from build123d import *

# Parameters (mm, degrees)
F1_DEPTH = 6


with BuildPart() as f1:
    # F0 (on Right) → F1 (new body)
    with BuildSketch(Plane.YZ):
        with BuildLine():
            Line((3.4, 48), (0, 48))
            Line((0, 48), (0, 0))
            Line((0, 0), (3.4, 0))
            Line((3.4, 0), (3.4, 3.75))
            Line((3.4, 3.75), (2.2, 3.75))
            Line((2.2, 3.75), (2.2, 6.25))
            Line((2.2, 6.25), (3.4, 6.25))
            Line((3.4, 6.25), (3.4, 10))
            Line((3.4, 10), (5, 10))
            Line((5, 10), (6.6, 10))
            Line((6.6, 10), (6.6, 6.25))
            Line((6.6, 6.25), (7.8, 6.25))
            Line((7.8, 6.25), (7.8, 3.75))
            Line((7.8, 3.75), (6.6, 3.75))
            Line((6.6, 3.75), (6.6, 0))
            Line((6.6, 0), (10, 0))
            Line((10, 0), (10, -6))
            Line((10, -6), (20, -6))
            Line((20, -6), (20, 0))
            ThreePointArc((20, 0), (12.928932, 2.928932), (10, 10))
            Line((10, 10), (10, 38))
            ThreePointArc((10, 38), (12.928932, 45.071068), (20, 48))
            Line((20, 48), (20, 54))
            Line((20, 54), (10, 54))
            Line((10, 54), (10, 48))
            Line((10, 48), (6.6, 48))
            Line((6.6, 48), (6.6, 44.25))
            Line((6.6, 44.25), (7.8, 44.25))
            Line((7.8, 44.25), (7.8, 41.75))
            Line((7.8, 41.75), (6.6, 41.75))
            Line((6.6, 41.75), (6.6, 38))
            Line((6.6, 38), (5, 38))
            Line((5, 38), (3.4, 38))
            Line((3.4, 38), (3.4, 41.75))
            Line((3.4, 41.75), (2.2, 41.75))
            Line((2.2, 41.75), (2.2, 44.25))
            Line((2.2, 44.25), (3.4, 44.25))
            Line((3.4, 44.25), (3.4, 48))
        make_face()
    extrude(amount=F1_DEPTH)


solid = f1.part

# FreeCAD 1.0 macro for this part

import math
import FreeCAD as App
import Part
import Sketcher

doc = App.newDocument("Part")
params = doc.addObject("Spreadsheet::Sheet", "Params")
for row, (alias, value) in enumerate([
    ("sketch1_radius", "9.999999 mm"),
    ("sketch1_height", "48 mm"),
    ("sketch1_height2", "6 mm"),
    ("sketch1_width", "3.4 mm"),
    ("sketch1_width2", "1.2 mm"),
    ("pad1_length", "6 mm"),
], start=1):
    params.set(f"A{row}", alias)
    params.set(f"B{row}", "=" + value)
    params.setAlias(f"B{row}", alias)

body = doc.addObject("PartDesign::Body", "Body")

# Sketch on YZ plane
sketch1 = body.newObject("Sketcher::SketchObject", "Sketch")
sketch1.AttachmentSupport = (doc.getObject("YZ_Plane"), [""])
sketch1.MapMode = "FlatFace"
sketch1.addGeometry([
    Part.LineSegment(App.Vector(3.4, 48, 0), App.Vector(0, 48, 0)),  # 0
    Part.LineSegment(App.Vector(0, 48, 0), App.Vector(0, 0, 0)),  # 1
    Part.LineSegment(App.Vector(0, 0, 0), App.Vector(3.4, 0, 0)),  # 2
    Part.LineSegment(App.Vector(3.4, 0, 0), App.Vector(3.4, 3.8, 0)),  # 3
    Part.LineSegment(App.Vector(3.4, 3.8, 0), App.Vector(2.2, 3.8, 0)),  # 4
    Part.LineSegment(App.Vector(2.2, 3.8, 0), App.Vector(2.2, 6.2, 0)),  # 5
    Part.LineSegment(App.Vector(2.2, 6.2, 0), App.Vector(3.4, 6.2, 0)),  # 6
    Part.LineSegment(App.Vector(3.4, 6.2, 0), App.Vector(3.4, 10, 0)),  # 7
    Part.LineSegment(App.Vector(3.4, 10, 0), App.Vector(6.6, 10, 0)),  # 8
    Part.LineSegment(App.Vector(6.6, 10, 0), App.Vector(6.6, 6.2, 0)),  # 9
    Part.LineSegment(App.Vector(6.6, 6.2, 0), App.Vector(7.8, 6.2, 0)),  # 10
    Part.LineSegment(App.Vector(7.8, 6.2, 0), App.Vector(7.8, 3.8, 0)),  # 11
    Part.LineSegment(App.Vector(7.8, 3.8, 0), App.Vector(6.6, 3.8, 0)),  # 12
    Part.LineSegment(App.Vector(6.6, 3.8, 0), App.Vector(6.6, 0, 0)),  # 13
    Part.LineSegment(App.Vector(6.6, 0, 0), App.Vector(10, 0, 0)),  # 14
    Part.LineSegment(App.Vector(10, 0, 0), App.Vector(10, -6, 0)),  # 15
    Part.LineSegment(App.Vector(10, -6, 0), App.Vector(20, -6, 0)),  # 16
    Part.LineSegment(App.Vector(20, -6, 0), App.Vector(20, 0, 0)),  # 17
    Part.ArcOfCircle(Part.Circle(App.Vector(20, 10, 0), App.Vector(0, 0, 1), 10), math.radians(180), math.radians(270)),  # 18
    Part.LineSegment(App.Vector(10, 10, 0), App.Vector(10, 38, 0)),  # 19
    Part.ArcOfCircle(Part.Circle(App.Vector(20, 38, 0), App.Vector(0, 0, 1), 10), math.radians(90), math.radians(180)),  # 20
    Part.LineSegment(App.Vector(20, 48, 0), App.Vector(20, 54, 0)),  # 21
    Part.LineSegment(App.Vector(20, 54, 0), App.Vector(10, 54, 0)),  # 22
    Part.LineSegment(App.Vector(10, 54, 0), App.Vector(10, 48, 0)),  # 23
    Part.LineSegment(App.Vector(10, 48, 0), App.Vector(6.6, 48, 0)),  # 24
    Part.LineSegment(App.Vector(6.6, 48, 0), App.Vector(6.6, 44.2, 0)),  # 25
    Part.LineSegment(App.Vector(6.6, 44.2, 0), App.Vector(7.8, 44.2, 0)),  # 26
    Part.LineSegment(App.Vector(7.8, 44.2, 0), App.Vector(7.8, 41.8, 0)),  # 27
    Part.LineSegment(App.Vector(7.8, 41.8, 0), App.Vector(6.6, 41.8, 0)),  # 28
    Part.LineSegment(App.Vector(6.6, 41.8, 0), App.Vector(6.6, 38, 0)),  # 29
    Part.LineSegment(App.Vector(6.6, 38, 0), App.Vector(3.4, 38, 0)),  # 30
    Part.LineSegment(App.Vector(3.4, 38, 0), App.Vector(3.4, 41.8, 0)),  # 31
    Part.LineSegment(App.Vector(3.4, 41.8, 0), App.Vector(2.2, 41.8, 0)),  # 32
    Part.LineSegment(App.Vector(2.2, 41.8, 0), App.Vector(2.2, 44.2, 0)),  # 33
    Part.LineSegment(App.Vector(2.2, 44.2, 0), App.Vector(3.4, 44.2, 0)),  # 34
    Part.LineSegment(App.Vector(3.4, 44.2, 0), App.Vector(3.4, 48, 0)),  # 35
], False)
sketch1.addConstraint([
    Sketcher.Constraint("Coincident", 0, 2, 1, 1),
    Sketcher.Constraint("Coincident", 1, 2, 2, 1),
    Sketcher.Constraint("Coincident", 2, 2, 3, 1),
    Sketcher.Constraint("Coincident", 3, 2, 4, 1),
    Sketcher.Constraint("Coincident", 4, 2, 5, 1),
    Sketcher.Constraint("Coincident", 5, 2, 6, 1),
    Sketcher.Constraint("Coincident", 6, 2, 7, 1),
    Sketcher.Constraint("Coincident", 7, 2, 8, 1),
    Sketcher.Constraint("Coincident", 8, 2, 9, 1),
    Sketcher.Constraint("Coincident", 9, 2, 10, 1),
    Sketcher.Constraint("Coincident", 10, 2, 11, 1),
    Sketcher.Constraint("Coincident", 11, 2, 12, 1),
    Sketcher.Constraint("Coincident", 12, 2, 13, 1),
    Sketcher.Constraint("Coincident", 13, 2, 14, 1),
    Sketcher.Constraint("Coincident", 14, 2, 15, 1),
    Sketcher.Constraint("Coincident", 15, 2, 16, 1),
    Sketcher.Constraint("Coincident", 16, 2, 17, 1),
    Sketcher.Constraint("Coincident", 17, 2, 18, 2),
    Sketcher.Constraint("Tangent", 18, 1, 19, 1),
    Sketcher.Constraint("Tangent", 19, 2, 20, 2),
    Sketcher.Constraint("Coincident", 20, 1, 21, 1),
    Sketcher.Constraint("Coincident", 21, 2, 22, 1),
    Sketcher.Constraint("Coincident", 22, 2, 23, 1),
    Sketcher.Constraint("Coincident", 23, 2, 24, 1),
    Sketcher.Constraint("Coincident", 24, 2, 25, 1),
    Sketcher.Constraint("Coincident", 25, 2, 26, 1),
    Sketcher.Constraint("Coincident", 26, 2, 27, 1),
    Sketcher.Constraint("Coincident", 27, 2, 28, 1),
    Sketcher.Constraint("Coincident", 28, 2, 29, 1),
    Sketcher.Constraint("Coincident", 29, 2, 30, 1),
    Sketcher.Constraint("Coincident", 30, 2, 31, 1),
    Sketcher.Constraint("Coincident", 31, 2, 32, 1),
    Sketcher.Constraint("Coincident", 32, 2, 33, 1),
    Sketcher.Constraint("Coincident", 33, 2, 34, 1),
    Sketcher.Constraint("Coincident", 34, 2, 35, 1),
    Sketcher.Constraint("Coincident", 35, 2, 0, 1),
    Sketcher.Constraint("Horizontal", 0),
    Sketcher.Constraint("Vertical", 1),
    Sketcher.Constraint("Horizontal", 2),
    Sketcher.Constraint("Vertical", 3),
    Sketcher.Constraint("Horizontal", 4),
    Sketcher.Constraint("Vertical", 5),
    Sketcher.Constraint("Horizontal", 6),
    Sketcher.Constraint("Vertical", 7),
    Sketcher.Constraint("Horizontal", 8),
    Sketcher.Constraint("Vertical", 9),
    Sketcher.Constraint("Horizontal", 10),
    Sketcher.Constraint("Vertical", 11),
    Sketcher.Constraint("Horizontal", 12),
    Sketcher.Constraint("Vertical", 13),
    Sketcher.Constraint("Horizontal", 14),
    Sketcher.Constraint("Vertical", 15),
    Sketcher.Constraint("Horizontal", 16),
    Sketcher.Constraint("Vertical", 17),
    Sketcher.Constraint("Vertical", 19),
    Sketcher.Constraint("Vertical", 21),
    Sketcher.Constraint("Horizontal", 22),
    Sketcher.Constraint("Vertical", 23),
    Sketcher.Constraint("Horizontal", 24),
    Sketcher.Constraint("Vertical", 25),
    Sketcher.Constraint("Horizontal", 26),
    Sketcher.Constraint("Vertical", 27),
    Sketcher.Constraint("Horizontal", 28),
    Sketcher.Constraint("Vertical", 29),
    Sketcher.Constraint("Horizontal", 30),
    Sketcher.Constraint("Vertical", 31),
    Sketcher.Constraint("Horizontal", 32),
    Sketcher.Constraint("Vertical", 33),
    Sketcher.Constraint("Horizontal", 34),
    Sketcher.Constraint("Vertical", 35),
    Sketcher.Constraint("Coincident", 1, 2, -1, 1),
    Sketcher.Constraint("Equal", 18, 20),
    Sketcher.Constraint("PointOnObject", 13, 2, -1),
    Sketcher.Constraint("PointOnObject", 17, 2, -1),
    Sketcher.Constraint("Horizontal", 18, 3, 7, 2),
    Sketcher.Constraint("Horizontal", 6, 2, 9, 2),
    Sketcher.Constraint("Horizontal", 4, 2, 11, 2),
    Sketcher.Constraint("Horizontal", 0, 2, 20, 1),
    Sketcher.Constraint("Horizontal", 20, 1, 23, 2),
    Sketcher.Constraint("Horizontal", 19, 2, 29, 2),
    Sketcher.Constraint("Horizontal", 28, 2, 31, 2),
    Sketcher.Constraint("Horizontal", 26, 2, 33, 2),
    Sketcher.Constraint("Vertical", 3, 2, 6, 2),
    Sketcher.Constraint("Vertical", 9, 2, 12, 2),
    Sketcher.Constraint("Vertical", 20, 3, 16, 2),
    Sketcher.Constraint("Vertical", 15, 2, 18, 1),
    Sketcher.Constraint("Vertical", 17, 2, 20, 1),
    Sketcher.Constraint("Vertical", 19, 2, 22, 2),
    Sketcher.Constraint("Vertical", 13, 2, 24, 2),
    Sketcher.Constraint("Vertical", 11, 2, 26, 2),
    Sketcher.Constraint("Vertical", 25, 2, 28, 2),
    Sketcher.Constraint("Vertical", 7, 2, 30, 2),
    Sketcher.Constraint("Vertical", 5, 2, 32, 2),
    Sketcher.Constraint("Vertical", 31, 2, 34, 2),
    Sketcher.Constraint("Equal", 6, 10),
    Sketcher.Constraint("Equal", 2, 14),
    Sketcher.Constraint("Equal", 3, 7),
    Sketcher.Constraint("Equal", 17, 21),
    Sketcher.Constraint("Equal", 13, 25),
    Sketcher.Constraint("Equal", 11, 27),
    Sketcher.Constraint("Radius", 18, 9.999999),
    Sketcher.Constraint("DistanceY", 1, 2, 1, 1, 48.0),
    Sketcher.Constraint("DistanceY", 15, 2, 15, 1, 6.0),
    Sketcher.Constraint("DistanceX", 0, 2, 0, 1, 3.4),
    Sketcher.Constraint("DistanceX", 4, 2, 4, 1, 1.2),
    Sketcher.Constraint("DistanceX", 8, 1, 8, 2, 3.2),
    Sketcher.Constraint("DistanceY", 5, 1, 5, 2, 2.5),
])
sketch1.setExpression("Constraints[100]", "Params.sketch1_radius")
sketch1.setExpression("Constraints[101]", "Params.sketch1_height")
sketch1.setExpression("Constraints[102]", "Params.sketch1_height2")
sketch1.setExpression("Constraints[103]", "Params.sketch1_width")
sketch1.setExpression("Constraints[104]", "Params.sketch1_width2")
pad1 = body.newObject("PartDesign::Pad", "Pad")
pad1.Profile = sketch1
pad1.setExpression("Length", "Params.pad1_length")

doc.recompute()
